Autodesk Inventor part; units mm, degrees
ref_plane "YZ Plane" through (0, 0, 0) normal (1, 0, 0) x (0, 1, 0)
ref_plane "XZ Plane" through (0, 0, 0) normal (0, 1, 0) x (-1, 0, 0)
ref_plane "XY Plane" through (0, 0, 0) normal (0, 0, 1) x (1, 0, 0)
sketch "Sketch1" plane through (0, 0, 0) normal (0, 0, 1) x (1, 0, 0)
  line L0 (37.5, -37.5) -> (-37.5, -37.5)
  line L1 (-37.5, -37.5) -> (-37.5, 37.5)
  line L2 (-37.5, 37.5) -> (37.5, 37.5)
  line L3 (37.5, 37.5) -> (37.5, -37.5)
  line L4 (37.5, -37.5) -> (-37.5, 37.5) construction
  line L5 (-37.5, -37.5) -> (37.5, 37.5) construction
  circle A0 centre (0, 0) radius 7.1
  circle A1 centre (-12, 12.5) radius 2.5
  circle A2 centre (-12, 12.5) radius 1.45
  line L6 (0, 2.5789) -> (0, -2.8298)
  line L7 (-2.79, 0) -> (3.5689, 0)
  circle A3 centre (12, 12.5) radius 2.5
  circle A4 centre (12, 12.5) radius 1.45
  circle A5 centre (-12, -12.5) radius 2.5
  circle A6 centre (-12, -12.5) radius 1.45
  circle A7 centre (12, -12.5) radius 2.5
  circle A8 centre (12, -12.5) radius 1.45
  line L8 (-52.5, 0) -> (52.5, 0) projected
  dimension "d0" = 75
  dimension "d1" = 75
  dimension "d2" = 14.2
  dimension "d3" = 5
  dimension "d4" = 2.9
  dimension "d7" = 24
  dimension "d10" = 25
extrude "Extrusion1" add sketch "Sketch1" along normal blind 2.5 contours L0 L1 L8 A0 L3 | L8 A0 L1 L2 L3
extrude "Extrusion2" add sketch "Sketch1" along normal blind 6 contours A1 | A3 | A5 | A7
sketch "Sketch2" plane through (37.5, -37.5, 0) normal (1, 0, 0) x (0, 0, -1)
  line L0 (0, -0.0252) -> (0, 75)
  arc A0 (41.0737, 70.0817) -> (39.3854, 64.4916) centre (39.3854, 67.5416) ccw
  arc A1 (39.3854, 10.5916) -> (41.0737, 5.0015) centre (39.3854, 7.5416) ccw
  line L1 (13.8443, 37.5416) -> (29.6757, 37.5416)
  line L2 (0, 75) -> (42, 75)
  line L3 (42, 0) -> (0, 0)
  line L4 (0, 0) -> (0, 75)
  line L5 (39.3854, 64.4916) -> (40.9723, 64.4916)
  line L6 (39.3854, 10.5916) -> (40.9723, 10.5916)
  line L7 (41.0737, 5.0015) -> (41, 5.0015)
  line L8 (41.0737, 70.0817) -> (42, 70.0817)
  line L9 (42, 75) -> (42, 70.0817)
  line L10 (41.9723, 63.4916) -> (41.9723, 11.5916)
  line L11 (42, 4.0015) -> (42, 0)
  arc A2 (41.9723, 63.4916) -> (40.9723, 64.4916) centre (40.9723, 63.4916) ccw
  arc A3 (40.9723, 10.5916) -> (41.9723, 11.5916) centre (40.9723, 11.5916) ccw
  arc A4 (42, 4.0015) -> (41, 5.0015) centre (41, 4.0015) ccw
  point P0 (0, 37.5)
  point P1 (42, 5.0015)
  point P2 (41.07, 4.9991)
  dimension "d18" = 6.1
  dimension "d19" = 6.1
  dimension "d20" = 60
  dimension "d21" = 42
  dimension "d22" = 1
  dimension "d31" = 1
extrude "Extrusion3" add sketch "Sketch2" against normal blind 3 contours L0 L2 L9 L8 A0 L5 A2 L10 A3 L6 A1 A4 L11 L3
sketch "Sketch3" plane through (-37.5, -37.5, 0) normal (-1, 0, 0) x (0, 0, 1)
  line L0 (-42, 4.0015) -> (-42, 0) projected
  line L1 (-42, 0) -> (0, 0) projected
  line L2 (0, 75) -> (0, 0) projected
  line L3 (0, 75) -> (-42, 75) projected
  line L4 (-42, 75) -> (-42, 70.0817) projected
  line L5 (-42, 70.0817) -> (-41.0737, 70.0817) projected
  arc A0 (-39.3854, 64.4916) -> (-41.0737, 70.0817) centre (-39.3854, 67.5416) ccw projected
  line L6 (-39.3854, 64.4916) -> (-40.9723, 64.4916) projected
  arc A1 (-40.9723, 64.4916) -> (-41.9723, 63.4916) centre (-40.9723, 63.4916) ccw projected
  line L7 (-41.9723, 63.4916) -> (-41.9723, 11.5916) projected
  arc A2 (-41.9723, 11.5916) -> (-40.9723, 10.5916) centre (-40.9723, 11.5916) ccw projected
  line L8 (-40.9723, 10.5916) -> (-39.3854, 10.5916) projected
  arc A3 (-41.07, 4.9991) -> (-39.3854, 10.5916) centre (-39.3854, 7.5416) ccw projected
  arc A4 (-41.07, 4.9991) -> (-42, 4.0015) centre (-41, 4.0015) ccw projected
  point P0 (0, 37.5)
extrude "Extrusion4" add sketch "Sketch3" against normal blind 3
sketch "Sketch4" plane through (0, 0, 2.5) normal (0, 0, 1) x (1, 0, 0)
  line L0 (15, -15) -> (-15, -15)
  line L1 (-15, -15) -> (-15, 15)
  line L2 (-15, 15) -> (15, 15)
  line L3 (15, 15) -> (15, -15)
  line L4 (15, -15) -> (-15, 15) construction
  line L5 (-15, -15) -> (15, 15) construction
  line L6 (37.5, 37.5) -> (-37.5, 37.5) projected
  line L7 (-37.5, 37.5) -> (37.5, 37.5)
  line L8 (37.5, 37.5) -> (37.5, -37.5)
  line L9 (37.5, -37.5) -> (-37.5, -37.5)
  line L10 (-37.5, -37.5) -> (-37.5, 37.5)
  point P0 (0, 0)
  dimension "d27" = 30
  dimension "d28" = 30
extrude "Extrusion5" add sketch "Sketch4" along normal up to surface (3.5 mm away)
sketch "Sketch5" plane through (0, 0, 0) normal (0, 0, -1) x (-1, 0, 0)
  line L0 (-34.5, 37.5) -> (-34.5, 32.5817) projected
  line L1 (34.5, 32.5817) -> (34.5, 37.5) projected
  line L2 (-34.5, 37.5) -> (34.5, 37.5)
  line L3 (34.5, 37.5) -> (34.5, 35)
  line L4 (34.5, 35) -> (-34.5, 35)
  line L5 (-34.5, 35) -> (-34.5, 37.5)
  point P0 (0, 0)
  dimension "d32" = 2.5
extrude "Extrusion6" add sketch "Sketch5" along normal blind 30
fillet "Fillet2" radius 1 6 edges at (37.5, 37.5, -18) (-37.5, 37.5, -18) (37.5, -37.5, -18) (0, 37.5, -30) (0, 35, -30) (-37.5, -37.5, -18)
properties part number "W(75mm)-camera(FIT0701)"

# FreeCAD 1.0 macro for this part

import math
import FreeCAD as App
import Part
import Sketcher
from FreeCAD import Vector


def edges_at(feature, points):
    """Names of the edges that pass closest to the given points."""
    edges = feature.Shape.Edges
    near = lambda p: min(range(len(edges)), key=lambda i: edges[i].distToShape(Part.Vertex(*p))[0])
    return sorted({f"Edge{near(p) + 1}" for p in points})


def add_polygon(sketch, points):
    """Adds a closed chain of lines whose ends are joined by coincident constraints."""
    first, n = sketch.GeometryCount, len(points)
    for a, b in zip(points, points[1:] + points[:1]):
        sketch.addGeometry(Part.LineSegment(App.Vector(*a, 0), App.Vector(*b, 0)), False)
    for i in range(n):
        sketch.addConstraint(Sketcher.Constraint("Coincident", first + i, 2, first + (i + 1) % n, 1))

doc = App.newDocument("Part")
body = doc.addObject("PartDesign::Body", "Body")

sketch1 = body.newObject("Sketcher::SketchObject", "Sketch")
sketch1.AttachmentSupport = (doc.getObject("XY_Plane"), [""])
sketch1.MapMode = "FlatFace"
add_polygon(sketch1, [(-37.5, -37.5), (37.5, -37.5), (37.5, 37.5), (-37.5, 37.5)])
sketch1.addGeometry(Part.Circle(Vector(0, 0, 0), Vector(0, 0, 1), 7.1), False)
sketch1.addGeometry(Part.Circle(Vector(-12, -12.5, 0), Vector(0, 0, 1), 2.5), False)
sketch1.addGeometry(Part.Circle(Vector(12, -12.5, 0), Vector(0, 0, 1), 2.5), False)
sketch1.addGeometry(Part.Circle(Vector(-12, 12.5, 0), Vector(0, 0, 1), 2.5), False)
sketch1.addGeometry(Part.Circle(Vector(12, 12.5, 0), Vector(0, 0, 1), 2.5), False)
sketch1.addConstraint([
    Sketcher.Constraint("Horizontal", 0),
    Sketcher.Constraint("Vertical", 1),
    Sketcher.Constraint("Horizontal", 2),
    Sketcher.Constraint("Vertical", 3),
    Sketcher.Constraint("Coincident", 4, 3, -1, 1),
    Sketcher.Constraint("Equal", 5, 6),
    Sketcher.Constraint("Equal", 6, 7),
    Sketcher.Constraint("Equal", 7, 8),
    Sketcher.Constraint("Symmetric", 6, 3, 7, 3, -1, 1),
    Sketcher.Constraint("Symmetric", 5, 3, 8, 3, -1, 1),
    Sketcher.Constraint("Symmetric", 0, 2, 2, 2, -1, 1),
    Sketcher.Constraint("Symmetric", 5, 3, 6, 3, -2),
    Sketcher.Constraint("Equal", 2, 1),
    Sketcher.Constraint("Diameter", 5, 5.0),
    Sketcher.Constraint("Diameter", 4, 14.2),
    Sketcher.Constraint("DistanceX", 0, 1, 0, 2, 75.0),
    Sketcher.Constraint("DistanceX", 5, 3, 6, 3, 24.0),
    Sketcher.Constraint("DistanceY", 5, 3, 7, 3, 25.0),
])
pad1 = body.newObject("PartDesign::Pad", "Pad")
pad1.Profile = sketch1
pad1.Length = 2.5

sketch2 = body.newObject("Sketcher::SketchObject", "Sketch001")
sketch2.AttachmentSupport = (doc.getObject("XY_Plane"), [""])
sketch2.MapMode = "FlatFace"
sketch2.addGeometry([
    Part.Circle(Vector(-12, 12.5, 0), Vector(0, 0, 1), 2.5),
    Part.Circle(Vector(-12, 12.5, 0), Vector(0, 0, 1), 1.4),
    Part.Circle(Vector(12, 12.5, 0), Vector(0, 0, 1), 2.5),
    Part.Circle(Vector(12, 12.5, 0), Vector(0, 0, 1), 1.4),
    Part.Circle(Vector(-12, -12.5, 0), Vector(0, 0, 1), 2.5),
    Part.Circle(Vector(-12, -12.5, 0), Vector(0, 0, 1), 1.4),
    Part.Circle(Vector(12, -12.5, 0), Vector(0, 0, 1), 2.5),
    Part.Circle(Vector(12, -12.5, 0), Vector(0, 0, 1), 1.4),
], False)
sketch2.addConstraint([
    Sketcher.Constraint("Coincident", 1, 3, 0, 3),
    Sketcher.Constraint("Coincident", 3, 3, 2, 3),
    Sketcher.Constraint("Coincident", 5, 3, 4, 3),
    Sketcher.Constraint("Coincident", 7, 3, 6, 3),
    Sketcher.Constraint("Equal", 0, 2),
    Sketcher.Constraint("Equal", 1, 3),
    Sketcher.Constraint("Equal", 2, 4),
    Sketcher.Constraint("Equal", 3, 5),
    Sketcher.Constraint("Equal", 4, 6),
    Sketcher.Constraint("Equal", 5, 7),
    Sketcher.Constraint("Symmetric", 2, 3, 4, 3, -1, 1),
    Sketcher.Constraint("Symmetric", 0, 3, 6, 3, -1, 1),
    Sketcher.Constraint("Symmetric", 0, 3, 2, 3, -2),
    Sketcher.Constraint("Diameter", 0, 5.0),
    Sketcher.Constraint("Diameter", 1, 2.9),
    Sketcher.Constraint("DistanceX", 0, 3, 2, 3, 24.0),
    Sketcher.Constraint("DistanceY", 4, 3, 0, 3, 25.0),
])
pad2 = body.newObject("PartDesign::Pad", "Pad001")
pad2.Profile = sketch2
pad2.Length = 6

sketch3 = body.newObject("Sketcher::SketchObject", "Sketch002")
sketch3.AttachmentSupport = (doc.getObject("YZ_Plane"), [""])
sketch3.MapMode = "FlatFace"
sketch3.AttachmentOffset = App.Placement(Vector(0, 0, 37.5), App.Rotation())
sketch3.addGeometry([
    Part.LineSegment(Vector(37.5, 0, 0), Vector(-37.5, 0, 0)),
    Part.LineSegment(Vector(-37.5, 0, 0), Vector(-37.5, -42, 0)),
    Part.LineSegment(Vector(-37.5, -42, 0), Vector(-33.5, -42, 0)),
    Part.ArcOfCircle(Part.Circle(Vector(-33.5, -41, 0), Vector(0, 0, 1), 1), math.radians(-90), math.radians(-4)),
    Part.ArcOfCircle(Part.Circle(Vector(-30, -39.4, 0), Vector(0, 0, 1), 3), math.radians(0), math.radians(214)),
    Part.LineSegment(Vector(-26.9, -39.4, 0), Vector(-26.9, -41, 0)),
    Part.ArcOfCircle(Part.Circle(Vector(-25.9, -41, 0), Vector(0, 0, 1), 1), math.radians(180), math.radians(270)),
    Part.LineSegment(Vector(-25.9, -42, 0), Vector(26, -42, 0)),
    Part.ArcOfCircle(Part.Circle(Vector(26, -41, 0), Vector(0, 0, 1), 1), math.radians(-90), math.radians(0)),
    Part.LineSegment(Vector(27, -41, 0), Vector(27, -39.4, 0)),
    Part.ArcOfCircle(Part.Circle(Vector(30, -39.4, 0), Vector(0, 0, 1), 3), math.radians(-34), math.radians(180)),
    Part.LineSegment(Vector(32.6, -41.1, 0), Vector(32.6, -42, 0)),
    Part.LineSegment(Vector(32.6, -42, 0), Vector(37.5, -42, 0)),
    Part.LineSegment(Vector(37.5, -42, 0), Vector(37.5, 0, 0)),
], False)
sketch3.addConstraint([
    Sketcher.Constraint("Coincident", 0, 2, 1, 1),
    Sketcher.Constraint("Coincident", 1, 2, 2, 1),
    Sketcher.Constraint("Tangent", 2, 2, 3, 1),
    Sketcher.Constraint("Coincident", 3, 2, 4, 2),
    Sketcher.Constraint("Tangent", 4, 1, 5, 1),
    Sketcher.Constraint("Tangent", 5, 2, 6, 1),
    Sketcher.Constraint("Tangent", 6, 2, 7, 1),
    Sketcher.Constraint("Tangent", 7, 2, 8, 1),
    Sketcher.Constraint("Tangent", 8, 2, 9, 1),
    Sketcher.Constraint("Tangent", 9, 2, 10, 2),
    Sketcher.Constraint("Coincident", 10, 1, 11, 1),
    Sketcher.Constraint("Coincident", 11, 2, 12, 1),
    Sketcher.Constraint("Coincident", 12, 2, 13, 1),
    Sketcher.Constraint("Coincident", 13, 2, 0, 1),
    Sketcher.Constraint("Horizontal", 0),
    Sketcher.Constraint("Vertical", 1),
    Sketcher.Constraint("Horizontal", 2),
    Sketcher.Constraint("Vertical", 5),
    Sketcher.Constraint("Horizontal", 7),
    Sketcher.Constraint("Vertical", 9),
    Sketcher.Constraint("Vertical", 11),
    Sketcher.Constraint("Horizontal", 12),
    Sketcher.Constraint("Vertical", 13),
    Sketcher.Constraint("Equal", 3, 6),
    Sketcher.Constraint("Equal", 6, 8),
    Sketcher.Constraint("Equal", 4, 10),
    Sketcher.Constraint("Symmetric", 0, 2, 13, 2, -1, 1),
    Sketcher.Constraint("Horizontal", 4, 3, 10, 3),
    Sketcher.Constraint("Horizontal", 2, 2, 11, 2),
    Sketcher.Constraint("Radius", 3, 1.0),
    Sketcher.Constraint("DistanceY", 1, 2, 1, 1, 42.0),
    Sketcher.Constraint("Radius", 4, 3.05),
    Sketcher.Constraint("DistanceX", 4, 3, 10, 3, 60.0),
    Sketcher.Constraint("DistanceX", 0, 2, 0, 1, 75.0),
    Sketcher.Constraint("DistanceY", 5, 2, 5, 1, 1.587),
    Sketcher.Constraint("DistanceY", 3, 2, -1, 1, 41.07),
    Sketcher.Constraint("DistanceX", 3, 3, 4, 3, 3.54),
    Sketcher.Constraint("DistanceX", 10, 3, 10, 1, 2.54),
    Sketcher.Constraint("DistanceX", 2, 1, 2, 2, 4.0015),
])
pad3 = body.newObject("PartDesign::Pad", "Pad002")
pad3.Profile = sketch3
pad3.Length = 3
pad3.Reversed = True

sketch4 = body.newObject("Sketcher::SketchObject", "Sketch003")
sketch4.AttachmentSupport = (doc.getObject("YZ_Plane"), [""])
sketch4.MapMode = "FlatFace"
sketch4.AttachmentOffset = App.Placement(Vector(0, 0, -37.5), App.Rotation())
sketch4.addGeometry([
    Part.ArcOfCircle(Part.Circle(Vector(-33.5, -41, 0), Vector(0, 0, 1), 1), math.radians(-90), math.radians(-4)),
    Part.LineSegment(Vector(-33.5, -42, 0), Vector(-37.5, -42, 0)),
    Part.LineSegment(Vector(-37.5, -42, 0), Vector(-37.5, 0, 0)),
    Part.LineSegment(Vector(-37.5, 0, 0), Vector(37.5, 0, 0)),
    Part.LineSegment(Vector(37.5, 0, 0), Vector(37.5, -42, 0)),
    Part.LineSegment(Vector(37.5, -42, 0), Vector(32.6, -42, 0)),
    Part.LineSegment(Vector(32.6, -42, 0), Vector(32.6, -41.1, 0)),
    Part.ArcOfCircle(Part.Circle(Vector(30, -39.4, 0), Vector(0, 0, 1), 3), math.radians(-34), math.radians(180)),
    Part.LineSegment(Vector(27, -39.4, 0), Vector(27, -41, 0)),
    Part.ArcOfCircle(Part.Circle(Vector(26, -41, 0), Vector(0, 0, 1), 1), math.radians(-90), math.radians(0)),
    Part.LineSegment(Vector(26, -42, 0), Vector(-25.9, -42, 0)),
    Part.ArcOfCircle(Part.Circle(Vector(-25.9, -41, 0), Vector(0, 0, 1), 1), math.radians(180), math.radians(270)),
    Part.LineSegment(Vector(-26.9, -41, 0), Vector(-26.9, -39.4, 0)),
    Part.ArcOfCircle(Part.Circle(Vector(-30, -39.4, 0), Vector(0, 0, 1), 3), math.radians(0), math.radians(214)),
], False)
sketch4.addConstraint([
    Sketcher.Constraint("Tangent", 0, 1, 1, 1),
    Sketcher.Constraint("Coincident", 1, 2, 2, 1),
    Sketcher.Constraint("Coincident", 2, 2, 3, 1),
    Sketcher.Constraint("Coincident", 3, 2, 4, 1),
    Sketcher.Constraint("Coincident", 4, 2, 5, 1),
    Sketcher.Constraint("Coincident", 5, 2, 6, 1),
    Sketcher.Constraint("Coincident", 6, 2, 7, 1),
    Sketcher.Constraint("Tangent", 7, 2, 8, 1),
    Sketcher.Constraint("Tangent", 8, 2, 9, 2),
    Sketcher.Constraint("Tangent", 9, 1, 10, 1),
    Sketcher.Constraint("Tangent", 10, 2, 11, 2),
    Sketcher.Constraint("Tangent", 11, 1, 12, 1),
    Sketcher.Constraint("Tangent", 12, 2, 13, 1),
    Sketcher.Constraint("Coincident", 13, 2, 0, 2),
    Sketcher.Constraint("Horizontal", 1),
    Sketcher.Constraint("Vertical", 2),
    Sketcher.Constraint("Horizontal", 3),
    Sketcher.Constraint("Vertical", 4),
    Sketcher.Constraint("Horizontal", 5),
    Sketcher.Constraint("Vertical", 6),
    Sketcher.Constraint("Vertical", 8),
    Sketcher.Constraint("Horizontal", 10),
    Sketcher.Constraint("Vertical", 12),
    Sketcher.Constraint("Equal", 0, 9),
    Sketcher.Constraint("Equal", 9, 11),
    Sketcher.Constraint("Equal", 7, 13),
    Sketcher.Constraint("Symmetric", 2, 2, 3, 2, -1, 1),
    Sketcher.Constraint("Horizontal", 7, 3, 13, 3),
    Sketcher.Constraint("Horizontal", 1, 2, 4, 2),
    Sketcher.Constraint("Radius", 0, 1.0),
    Sketcher.Constraint("DistanceX", 3, 1, 3, 2, 75.0),
    Sketcher.Constraint("DistanceY", 2, 1, 2, 2, 42.0),
    Sketcher.Constraint("Radius", 7, 3.05),
    Sketcher.Constraint("DistanceX", 10, 2, 10, 1, 51.9),
    Sketcher.Constraint("DistanceY", 8, 2, 8, 1, 1.587),
    Sketcher.Constraint("DistanceY", 13, 2, -1, 1, 41.07),
    Sketcher.Constraint("DistanceX", 0, 3, 7, 3, 63.54),
    Sketcher.Constraint("DistanceX", 7, 3, 5, 2, 2.54),
    Sketcher.Constraint("DistanceX", 1, 2, 1, 1, 4.0015),
])
pad4 = body.newObject("PartDesign::Pad", "Pad003")
pad4.Profile = sketch4
pad4.Length = 3

sketch5 = body.newObject("Sketcher::SketchObject", "Sketch004")
sketch5.AttachmentSupport = (doc.getObject("XY_Plane"), [""])
sketch5.MapMode = "FlatFace"
sketch5.AttachmentOffset = App.Placement(Vector(0, 0, 2.5), App.Rotation())
add_polygon(sketch5, [(38, -38), (38, 38), (-38, 38), (-38, -38)])
add_polygon(sketch5, [(15, 15), (15, -15), (-15, -15), (-15, 15)])
sketch5.addConstraint([
    Sketcher.Constraint("Vertical", 0),
    Sketcher.Constraint("Horizontal", 1),
    Sketcher.Constraint("Vertical", 2),
    Sketcher.Constraint("Horizontal", 3),
    Sketcher.Constraint("Vertical", 4),
    Sketcher.Constraint("Horizontal", 5),
    Sketcher.Constraint("Vertical", 6),
    Sketcher.Constraint("Horizontal", 7),
    Sketcher.Constraint("Symmetric", 0, 2, 2, 2, -1, 1),
    Sketcher.Constraint("Symmetric", 4, 2, 6, 2, -1, 1),
    Sketcher.Constraint("Equal", 3, 0),
    Sketcher.Constraint("Equal", 7, 4),
    Sketcher.Constraint("DistanceX", 5, 2, 5, 1, 30.0),
    Sketcher.Constraint("DistanceX", 1, 2, 1, 1, 75.0),
])
pad5 = body.newObject("PartDesign::Pad", "Pad004")
pad5.Profile = sketch5
pad5.Length = 3.5

sketch6 = body.newObject("Sketcher::SketchObject", "Sketch005")
sketch6.AttachmentSupport = (doc.getObject("XY_Plane"), [""])
sketch6.MapMode = "FlatFace"
add_polygon(sketch6, [(-34.5, 37.5), (34.5, 37.5), (34.5, 35), (-34.5, 35)])
sketch6.addConstraint([
    Sketcher.Constraint("Horizontal", 0),
    Sketcher.Constraint("Vertical", 1),
    Sketcher.Constraint("Horizontal", 2),
    Sketcher.Constraint("Vertical", 3),
    Sketcher.Constraint("DistanceY", 1, 2, 1, 1, 2.5),
    Sketcher.Constraint("DistanceX", 0, 1, 0, 2, 69.0),
    Sketcher.Constraint("DistanceY", -1, 1, 1, 2, 35.0),
    Sketcher.Constraint("DistanceX", -1, 1, 0, 2, 34.5),
])
pad6 = body.newObject("PartDesign::Pad", "Pad005")
pad6.Profile = sketch6
pad6.Length = 30
pad6.Reversed = True
doc.recompute()

fillet = body.newObject("PartDesign::Fillet", "Fillet")
fillet.Base = (pad6, edges_at(pad6, [
    (37.5, 37.5, -18),
    (-37.5, 37.5, -18),
    (37.5, -37.5, -18),
    (0, 37.5, -30),
    (0, 35, -30),
    (-37.5, -37.5, -18),
]))
fillet.Radius = 1

doc.recompute()
